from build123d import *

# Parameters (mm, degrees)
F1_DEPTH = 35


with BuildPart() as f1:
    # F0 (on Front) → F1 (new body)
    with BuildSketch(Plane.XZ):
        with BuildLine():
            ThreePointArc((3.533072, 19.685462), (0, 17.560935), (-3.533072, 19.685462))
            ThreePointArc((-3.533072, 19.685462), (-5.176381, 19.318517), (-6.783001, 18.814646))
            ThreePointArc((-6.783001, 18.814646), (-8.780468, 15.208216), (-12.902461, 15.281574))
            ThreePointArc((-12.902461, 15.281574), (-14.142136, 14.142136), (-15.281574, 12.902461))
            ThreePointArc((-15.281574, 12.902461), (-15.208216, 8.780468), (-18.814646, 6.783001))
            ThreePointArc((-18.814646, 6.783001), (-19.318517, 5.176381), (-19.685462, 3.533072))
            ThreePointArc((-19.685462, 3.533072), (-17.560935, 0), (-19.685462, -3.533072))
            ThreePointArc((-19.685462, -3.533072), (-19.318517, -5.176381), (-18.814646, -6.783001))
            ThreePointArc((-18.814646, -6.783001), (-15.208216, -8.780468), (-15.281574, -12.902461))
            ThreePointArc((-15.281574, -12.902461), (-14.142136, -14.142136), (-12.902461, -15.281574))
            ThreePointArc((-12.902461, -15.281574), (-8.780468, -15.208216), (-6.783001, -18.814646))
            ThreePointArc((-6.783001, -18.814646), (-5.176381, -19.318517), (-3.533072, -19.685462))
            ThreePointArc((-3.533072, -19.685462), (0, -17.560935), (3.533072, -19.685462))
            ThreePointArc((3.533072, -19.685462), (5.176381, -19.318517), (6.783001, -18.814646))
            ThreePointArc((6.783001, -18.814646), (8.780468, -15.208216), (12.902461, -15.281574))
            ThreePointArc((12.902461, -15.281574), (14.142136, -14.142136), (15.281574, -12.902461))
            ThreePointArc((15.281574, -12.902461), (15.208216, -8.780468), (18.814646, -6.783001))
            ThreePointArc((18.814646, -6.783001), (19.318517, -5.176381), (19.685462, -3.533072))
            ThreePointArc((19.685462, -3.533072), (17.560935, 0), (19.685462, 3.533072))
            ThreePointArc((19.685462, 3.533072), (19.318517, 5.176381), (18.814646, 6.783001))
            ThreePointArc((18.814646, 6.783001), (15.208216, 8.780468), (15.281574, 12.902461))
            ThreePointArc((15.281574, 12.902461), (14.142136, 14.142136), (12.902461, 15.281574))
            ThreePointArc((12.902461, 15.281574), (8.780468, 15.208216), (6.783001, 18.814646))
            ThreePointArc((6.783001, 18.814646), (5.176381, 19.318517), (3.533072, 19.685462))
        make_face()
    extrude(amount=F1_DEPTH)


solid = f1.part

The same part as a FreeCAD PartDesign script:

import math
import FreeCAD as App
import Part
import Sketcher
Q = App.Units.Quantity

doc = App.newDocument("Part")
body = doc.addObject("PartDesign::Body", "Body")

# Sketch on XZ plane
sketch1 = doc.addObject("Sketcher::SketchObject", "Sketch")
body.addObject(sketch1)
sketch1.AttachmentSupport = (doc.XZ_Plane, [""])
sketch1.MapMode = "FlatFace"
sketch1.addGeometry(Part.ArcOfCircle(Part.Circle(App.Vector(0, 21.560934, 0), App.Vector(0, 0, 1), 3.999999), math.radians(-152.039149), math.radians(-27.960851)), False)
sketch1.addGeometry(Part.ArcOfCircle(Part.Circle(App.Vector(-0.000018, 0.000069, 0), App.Vector(0, 0, 1), 19.99993), math.radians(100.174887), math.radians(109.825118)), False)
sketch1.addGeometry(Part.ArcOfCircle(Part.Circle(App.Vector(-10.780468, 18.672317, 0), App.Vector(0, 0, 1), 4), math.radians(-122.039137), math.radians(2.039138)), False)
sketch1.addGeometry(Part.ArcOfCircle(Part.Circle(App.Vector(-0.000087, 0.000087, 0), App.Vector(0, 0, 1), 19.999877), math.radians(130.174872), math.radians(139.825128)), False)
sketch1.addGeometry(Part.ArcOfCircle(Part.Circle(App.Vector(-18.672317, 10.780468, 0), App.Vector(0, 0, 1), 4), math.radians(-92.039138), math.radians(32.039137)), False)
sketch1.addGeometry(Part.ArcOfCircle(Part.Circle(App.Vector(-0.000069, 0.000018, 0), App.Vector(0, 0, 1), 19.99993), math.radians(160.174882), math.radians(169.825113)), False)
sketch1.addGeometry(Part.ArcOfCircle(Part.Circle(App.Vector(-21.560934, 0, 0), App.Vector(0, 0, 1), 3.999999), math.radians(-62.039149), math.radians(62.039149)), False)
sketch1.addGeometry(Part.ArcOfCircle(Part.Circle(App.Vector(-0.000069, -0.000018, 0), App.Vector(0, 0, 1), 19.99993), math.radians(-169.825113), math.radians(-160.174882)), False)
sketch1.addGeometry(Part.ArcOfCircle(Part.Circle(App.Vector(-18.672317, -10.780468, 0), App.Vector(0, 0, 1), 4), math.radians(-32.039137), math.radians(92.039138)), False)
sketch1.addGeometry(Part.ArcOfCircle(Part.Circle(App.Vector(-0.000087, -0.000087, 0), App.Vector(0, 0, 1), 19.999877), math.radians(-139.825128), math.radians(-130.174872)), False)
sketch1.addGeometry(Part.ArcOfCircle(Part.Circle(App.Vector(-10.780468, -18.672317, 0), App.Vector(0, 0, 1), 4), math.radians(-2.039138), math.radians(122.039137)), False)
sketch1.addGeometry(Part.ArcOfCircle(Part.Circle(App.Vector(-0.000018, -0.000069, 0), App.Vector(0, 0, 1), 19.99993), math.radians(-109.825118), math.radians(-100.174887)), False)
sketch1.addGeometry(Part.ArcOfCircle(Part.Circle(App.Vector(0, -21.560934, 0), App.Vector(0, 0, 1), 3.999999), math.radians(27.960851), math.radians(152.039149)), False)
sketch1.addGeometry(Part.ArcOfCircle(Part.Circle(App.Vector(0.000018, -0.000069, 0), App.Vector(0, 0, 1), 19.99993), math.radians(-79.825113), math.radians(-70.174882)), False)
sketch1.addGeometry(Part.ArcOfCircle(Part.Circle(App.Vector(10.780468, -18.672317, 0), App.Vector(0, 0, 1), 4), math.radians(57.960863), math.radians(182.039138)), False)
sketch1.addGeometry(Part.ArcOfCircle(Part.Circle(App.Vector(0.000087, -0.000087, 0), App.Vector(0, 0, 1), 19.999877), math.radians(-49.825128), math.radians(-40.174872)), False)
sketch1.addGeometry(Part.ArcOfCircle(Part.Circle(App.Vector(18.672317, -10.780468, 0), App.Vector(0, 0, 1), 4), math.radians(87.960862), math.radians(212.039137)), False)
sketch1.addGeometry(Part.ArcOfCircle(Part.Circle(App.Vector(0.000069, -0.000018, 0), App.Vector(0, 0, 1), 19.99993), math.radians(-19.825118), math.radians(-10.174887)), False)
sketch1.addGeometry(Part.ArcOfCircle(Part.Circle(App.Vector(21.560934, 0, 0), App.Vector(0, 0, 1), 3.999999), math.radians(117.960851), math.radians(242.039149)), False)
sketch1.addGeometry(Part.ArcOfCircle(Part.Circle(App.Vector(0.000069, 0.000018, 0), App.Vector(0, 0, 1), 19.99993), math.radians(10.174887), math.radians(19.825118)), False)
sketch1.addGeometry(Part.ArcOfCircle(Part.Circle(App.Vector(18.672317, 10.780468, 0), App.Vector(0, 0, 1), 4), math.radians(147.960863), math.radians(272.039138)), False)
sketch1.addGeometry(Part.ArcOfCircle(Part.Circle(App.Vector(0.000087, 0.000087, 0), App.Vector(0, 0, 1), 19.999877), math.radians(40.174872), math.radians(49.825128)), False)
sketch1.addGeometry(Part.ArcOfCircle(Part.Circle(App.Vector(10.780468, 18.672317, 0), App.Vector(0, 0, 1), 4), math.radians(177.960862), math.radians(302.039137)), False)
sketch1.addGeometry(Part.ArcOfCircle(Part.Circle(App.Vector(0.000018, 0.000069, 0), App.Vector(0, 0, 1), 19.99993), math.radians(70.174882), math.radians(79.825113)), False)
sketch1.addConstraint(Sketcher.Constraint("Coincident", 0, 1, 1, 1))
sketch1.addConstraint(Sketcher.Constraint("Coincident", 1, 2, 2, 2))
sketch1.addConstraint(Sketcher.Constraint("Coincident", 2, 1, 3, 1))
sketch1.addConstraint(Sketcher.Constraint("Coincident", 3, 2, 4, 2))
sketch1.addConstraint(Sketcher.Constraint("Coincident", 4, 1, 5, 1))
sketch1.addConstraint(Sketcher.Constraint("Coincident", 5, 2, 6, 2))
sketch1.addConstraint(Sketcher.Constraint("Coincident", 6, 1, 7, 1))
sketch1.addConstraint(Sketcher.Constraint("Coincident", 7, 2, 8, 2))
sketch1.addConstraint(Sketcher.Constraint("Coincident", 8, 1, 9, 1))
sketch1.addConstraint(Sketcher.Constraint("Coincident", 9, 2, 10, 2))
sketch1.addConstraint(Sketcher.Constraint("Coincident", 10, 1, 11, 1))
sketch1.addConstraint(Sketcher.Constraint("Coincident", 11, 2, 12, 2))
sketch1.addConstraint(Sketcher.Constraint("Coincident", 12, 1, 13, 1))
sketch1.addConstraint(Sketcher.Constraint("Coincident", 13, 2, 14, 2))
sketch1.addConstraint(Sketcher.Constraint("Coincident", 14, 1, 15, 1))
sketch1.addConstraint(Sketcher.Constraint("Coincident", 15, 2, 16, 2))
sketch1.addConstraint(Sketcher.Constraint("Coincident", 16, 1, 17, 1))
sketch1.addConstraint(Sketcher.Constraint("Coincident", 17, 2, 18, 2))
sketch1.addConstraint(Sketcher.Constraint("Coincident", 18, 1, 19, 1))
sketch1.addConstraint(Sketcher.Constraint("Coincident", 19, 2, 20, 2))
sketch1.addConstraint(Sketcher.Constraint("Coincident", 20, 1, 21, 1))
sketch1.addConstraint(Sketcher.Constraint("Coincident", 21, 2, 22, 2))
sketch1.addConstraint(Sketcher.Constraint("Coincident", 22, 1, 23, 1))
sketch1.addConstraint(Sketcher.Constraint("Coincident", 23, 2, 0, 2))
sketch1.addConstraint(Sketcher.Constraint("Equal", 0, 2))
sketch1.addConstraint(Sketcher.Constraint("Equal", 2, 4))
sketch1.addConstraint(Sketcher.Constraint("Equal", 1, 5))
sketch1.addConstraint(Sketcher.Constraint("Equal", 4, 6))
sketch1.addConstraint(Sketcher.Constraint("Equal", 5, 7))
sketch1.addConstraint(Sketcher.Constraint("Equal", 6, 8))
sketch1.addConstraint(Sketcher.Constraint("Equal", 3, 9))
sketch1.addConstraint(Sketcher.Constraint("Equal", 8, 10))
sketch1.addConstraint(Sketcher.Constraint("Equal", 7, 11))
sketch1.addConstraint(Sketcher.Constraint("Equal", 10, 12))
sketch1.addConstraint(Sketcher.Constraint("Equal", 11, 13))
sketch1.addConstraint(Sketcher.Constraint("Equal", 12, 14))
sketch1.addConstraint(Sketcher.Constraint("Equal", 9, 15))
sketch1.addConstraint(Sketcher.Constraint("Equal", 14, 16))
sketch1.addConstraint(Sketcher.Constraint("Equal", 13, 17))
sketch1.addConstraint(Sketcher.Constraint("Equal", 16, 18))
sketch1.addConstraint(Sketcher.Constraint("Equal", 17, 19))
sketch1.addConstraint(Sketcher.Constraint("Equal", 18, 20))
sketch1.addConstraint(Sketcher.Constraint("Equal", 15, 21))
sketch1.addConstraint(Sketcher.Constraint("Equal", 20, 22))
sketch1.addConstraint(Sketcher.Constraint("Equal", 19, 23))
sketch1.addConstraint(Sketcher.Constraint("Symmetric", 0, 3, 12, 3, -1, 1))
sketch1.addConstraint(Sketcher.Constraint("Symmetric", 1, 3, 13, 3, -1, 1))
sketch1.addConstraint(Sketcher.Constraint("Symmetric", 2, 3, 14, 3, -1, 1))
sketch1.addConstraint(Sketcher.Constraint("Symmetric", 3, 3, 15, 3, -1, 1))
sketch1.addConstraint(Sketcher.Constraint("Symmetric", 4, 3, 16, 3, -1, 1))
sketch1.addConstraint(Sketcher.Constraint("Symmetric", 5, 3, 17, 3, -1, 1))
sketch1.addConstraint(Sketcher.Constraint("Symmetric", 6, 3, 18, 3, -1, 1))
sketch1.addConstraint(Sketcher.Constraint("Symmetric", 7, 3, 19, 3, -1, 1))
sketch1.addConstraint(Sketcher.Constraint("Symmetric", 8, 3, 20, 3, -1, 1))
sketch1.addConstraint(Sketcher.Constraint("Symmetric", 9, 3, 21, 3, -1, 1))
sketch1.addConstraint(Sketcher.Constraint("Symmetric", 10, 3, 22, 3, -1, 1))
sketch1.addConstraint(Sketcher.Constraint("Symmetric", 11, 3, 23, 3, -1, 1))
sketch1.addConstraint(Sketcher.Constraint("Symmetric", 11, 3, 13, 3, -2))
sketch1.addConstraint(Sketcher.Constraint("Symmetric", 10, 3, 14, 3, -2))
sketch1.addConstraint(Sketcher.Constraint("Symmetric", 9, 3, 15, 3, -2))
sketch1.addConstraint(Sketcher.Constraint("Symmetric", 8, 3, 16, 3, -2))
sketch1.addConstraint(Sketcher.Constraint("Symmetric", 7, 3, 17, 3, -2))
sketch1.addConstraint(Sketcher.Constraint("PointOnObject", 0, 3, -2))
sketch1.addConstraint(Sketcher.Constraint("PointOnObject", 6, 3, -1))
sketch1.addConstraint(Sketcher.Constraint("Radius", 0, Q("3.999999 mm")))
sketch1.addConstraint(Sketcher.Constraint("Radius", 1, Q("19.99993 mm")))
sketch1.addConstraint(Sketcher.Constraint("DistanceX", 1, 2, -1, 1, Q("6.783001 mm")))
sketch1.addConstraint(Sketcher.Constraint("DistanceY", -1, 1, 4, 1, Q("6.783001 mm")))
sketch1.addConstraint(Sketcher.Constraint("Radius", 3, Q("19.999877 mm")))
sketch1.addConstraint(Sketcher.Constraint("DistanceY", 3, 2, 0, 1, Q("6.783001 mm")))
sketch1.addConstraint(Sketcher.Constraint("DistanceX", 5, 2, 2, 1, Q("6.783001 mm")))
sketch1.addConstraint(Sketcher.Constraint("DistanceX", 4, 3, 1, 3, Q("18.6723 mm")))
sketch1.addConstraint(Sketcher.Constraint("DistanceY", 1, 3, 4, 3, Q("10.780399 mm")))
sketch1.addConstraint(Sketcher.Constraint("DistanceX", 2, 3, 5, 3, Q("10.780399 mm")))
sketch1.addConstraint(Sketcher.Constraint("DistanceY", 5, 3, 2, 3, Q("18.6723 mm")))
sketch1.addConstraint(Sketcher.Constraint("DistanceX", 3, 2, 0, 1, Q("11.748502 mm")))
sketch1.addConstraint(Sketcher.Constraint("DistanceY", 9, 2, 6, 1, Q("11.748502 mm")))
sketch1.addConstraint(Sketcher.Constraint("DistanceY", -1, 1, 5, 2, Q("3.533072 mm")))
sketch1.addConstraint(Sketcher.Constraint("DistanceX", 11, 2, -1, 1, Q("3.533072 mm")))
pad1 = doc.addObject("PartDesign::Pad", "Pad")
body.addObject(pad1)
pad1.Profile = sketch1
pad1.Length = 35

doc.recompute()
